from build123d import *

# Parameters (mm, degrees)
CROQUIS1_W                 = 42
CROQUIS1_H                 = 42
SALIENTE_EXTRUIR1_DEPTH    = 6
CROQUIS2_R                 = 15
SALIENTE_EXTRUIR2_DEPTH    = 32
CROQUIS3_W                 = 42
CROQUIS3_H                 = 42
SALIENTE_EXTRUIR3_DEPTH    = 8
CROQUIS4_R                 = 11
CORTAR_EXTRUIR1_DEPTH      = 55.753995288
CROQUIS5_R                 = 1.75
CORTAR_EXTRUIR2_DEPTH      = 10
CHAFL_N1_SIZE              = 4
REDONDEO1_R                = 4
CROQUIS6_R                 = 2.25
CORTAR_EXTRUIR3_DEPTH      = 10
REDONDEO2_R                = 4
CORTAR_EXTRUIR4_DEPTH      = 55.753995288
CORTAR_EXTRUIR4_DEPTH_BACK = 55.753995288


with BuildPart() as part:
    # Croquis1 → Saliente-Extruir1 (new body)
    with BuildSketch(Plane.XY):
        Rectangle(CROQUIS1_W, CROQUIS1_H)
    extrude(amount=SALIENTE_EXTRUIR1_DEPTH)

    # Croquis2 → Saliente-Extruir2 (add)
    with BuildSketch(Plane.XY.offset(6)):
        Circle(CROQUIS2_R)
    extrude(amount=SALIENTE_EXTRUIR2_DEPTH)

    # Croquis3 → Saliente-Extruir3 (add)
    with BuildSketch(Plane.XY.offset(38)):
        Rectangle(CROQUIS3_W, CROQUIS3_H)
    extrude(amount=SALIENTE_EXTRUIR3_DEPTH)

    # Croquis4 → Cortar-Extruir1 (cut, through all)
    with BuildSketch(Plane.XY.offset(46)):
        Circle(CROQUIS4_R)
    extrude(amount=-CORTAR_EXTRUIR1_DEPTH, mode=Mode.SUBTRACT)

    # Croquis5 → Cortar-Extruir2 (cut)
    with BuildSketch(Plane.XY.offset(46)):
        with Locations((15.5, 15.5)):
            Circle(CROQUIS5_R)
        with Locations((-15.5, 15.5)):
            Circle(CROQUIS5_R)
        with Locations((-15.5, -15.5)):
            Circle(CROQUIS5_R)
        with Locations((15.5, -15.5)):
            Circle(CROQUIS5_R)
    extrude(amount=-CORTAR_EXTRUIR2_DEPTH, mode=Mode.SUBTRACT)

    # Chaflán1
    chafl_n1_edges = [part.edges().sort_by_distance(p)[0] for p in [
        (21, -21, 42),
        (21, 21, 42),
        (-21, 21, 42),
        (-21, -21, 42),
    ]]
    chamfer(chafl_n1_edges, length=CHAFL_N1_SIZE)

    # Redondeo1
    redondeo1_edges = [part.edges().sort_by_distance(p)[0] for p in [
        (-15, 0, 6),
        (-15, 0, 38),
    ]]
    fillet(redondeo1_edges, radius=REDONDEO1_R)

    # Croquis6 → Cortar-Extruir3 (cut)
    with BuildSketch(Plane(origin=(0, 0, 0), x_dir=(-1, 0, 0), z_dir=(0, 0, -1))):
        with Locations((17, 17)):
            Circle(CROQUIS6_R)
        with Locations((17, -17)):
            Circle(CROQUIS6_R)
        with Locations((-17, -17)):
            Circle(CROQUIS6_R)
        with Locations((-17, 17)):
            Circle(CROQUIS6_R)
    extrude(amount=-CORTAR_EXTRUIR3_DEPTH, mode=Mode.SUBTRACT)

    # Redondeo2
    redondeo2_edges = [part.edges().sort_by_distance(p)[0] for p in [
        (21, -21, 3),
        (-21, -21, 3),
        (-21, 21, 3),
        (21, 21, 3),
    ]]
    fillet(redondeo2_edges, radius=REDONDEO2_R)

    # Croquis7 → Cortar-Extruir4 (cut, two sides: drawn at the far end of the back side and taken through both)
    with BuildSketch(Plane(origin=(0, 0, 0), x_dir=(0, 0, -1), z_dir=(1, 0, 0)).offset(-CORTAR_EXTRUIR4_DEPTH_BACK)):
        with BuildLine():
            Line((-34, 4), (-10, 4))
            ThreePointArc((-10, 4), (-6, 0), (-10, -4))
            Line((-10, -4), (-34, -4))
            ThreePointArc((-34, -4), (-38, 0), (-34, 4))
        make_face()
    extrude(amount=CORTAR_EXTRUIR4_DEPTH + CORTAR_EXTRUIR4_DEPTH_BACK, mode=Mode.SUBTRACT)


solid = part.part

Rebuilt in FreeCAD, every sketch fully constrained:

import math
import FreeCAD as App
import Part
import Sketcher
from FreeCAD import Vector


def edges_at(feature, points):
    """Names of the edges that pass closest to the given points."""
    edges = feature.Shape.Edges
    near = lambda p: min(range(len(edges)), key=lambda i: edges[i].distToShape(Part.Vertex(*p))[0])
    return sorted({f"Edge{near(p) + 1}" for p in points})

doc = App.newDocument("Part")
params = doc.addObject("Spreadsheet::Sheet", "Params")
for row, (alias, value) in enumerate([
    ("sketch1_width", "42 mm"),
    ("pad1_length", "6 mm"),
    ("sketch2_diameter", "30 mm"),
    ("pad2_length", "32 mm"),
    ("sketch3_width", "42 mm"),
    ("pad3_length", "8 mm"),
    ("sketch4_diameter", "22 mm"),
    ("sketch5_diameter", "3.5 mm"),
    ("pocket2_length", "10 mm"),
    ("chamfer_size", "4 mm"),
    ("fillet_radius", "4 mm"),
    ("sketch6_diameter", "4.5 mm"),
    ("pocket3_length", "10 mm"),
    ("fillet2_radius", "4 mm"),
    ("sketch7_radius", "4 mm"),
    ("sketch7_height", "24 mm"),
], start=1):
    params.set(f"A{row}", alias)
    params.set(f"B{row}", "=" + value)
    params.setAlias(f"B{row}", alias)

body = doc.addObject("PartDesign::Body", "Body")

# Sketch on XY plane
sketch1 = body.newObject("Sketcher::SketchObject", "Sketch")
sketch1.AttachmentSupport = (doc.getObject("XY_Plane"), [""])
sketch1.MapMode = "FlatFace"
sketch1.addGeometry([
    Part.LineSegment(Vector(-21, 21, 0), Vector(-21, -21, 0)),
    Part.LineSegment(Vector(-21, -21, 0), Vector(21, -21, 0)),
    Part.LineSegment(Vector(21, -21, 0), Vector(21, 21, 0)),
    Part.LineSegment(Vector(21, 21, 0), Vector(-21, 21, 0)),
], False)
sketch1.addConstraint([
    Sketcher.Constraint("Coincident", 0, 2, 1, 1),
    Sketcher.Constraint("Coincident", 1, 2, 2, 1),
    Sketcher.Constraint("Coincident", 2, 2, 3, 1),
    Sketcher.Constraint("Coincident", 3, 2, 0, 1),
    Sketcher.Constraint("Vertical", 0),
    Sketcher.Constraint("Horizontal", 1),
    Sketcher.Constraint("Vertical", 2),
    Sketcher.Constraint("Horizontal", 3),
    Sketcher.Constraint("Symmetric", 0, 2, 2, 2, -1, 1),
    Sketcher.Constraint("Equal", 3, 0),
    Sketcher.Constraint("DistanceX", 1, 1, 1, 2, 42.0),
])
sketch1.setExpression("Constraints[10]", "Params.sketch1_width")
pad1 = body.newObject("PartDesign::Pad", "Pad")
pad1.Profile = sketch1
pad1.setExpression("Length", "Params.pad1_length")

# Sketch on XY plane
sketch2 = body.newObject("Sketcher::SketchObject", "Sketch001")
sketch2.AttachmentSupport = (doc.getObject("XY_Plane"), [""])
sketch2.MapMode = "FlatFace"
sketch2.AttachmentOffset = App.Placement(Vector(0, 0, 6), App.Rotation())
sketch2.addGeometry(Part.Circle(Vector(0, 0, 0), Vector(0, 0, 1), 15), False)
sketch2.addConstraint([
    Sketcher.Constraint("Coincident", 0, 3, -1, 1),
    Sketcher.Constraint("Diameter", 0, 30.0),
])
sketch2.setExpression("Constraints[1]", "Params.sketch2_diameter")
pad2 = body.newObject("PartDesign::Pad", "Pad001")
pad2.Profile = sketch2
pad2.setExpression("Length", "Params.pad2_length")

# Sketch on XY plane
sketch3 = body.newObject("Sketcher::SketchObject", "Sketch002")
sketch3.AttachmentSupport = (doc.getObject("XY_Plane"), [""])
sketch3.MapMode = "FlatFace"
sketch3.AttachmentOffset = App.Placement(Vector(0, 0, 38), App.Rotation())
sketch3.addGeometry([
    Part.LineSegment(Vector(-21, 21, 0), Vector(-21, -21, 0)),
    Part.LineSegment(Vector(-21, -21, 0), Vector(21, -21, 0)),
    Part.LineSegment(Vector(21, -21, 0), Vector(21, 21, 0)),
    Part.LineSegment(Vector(21, 21, 0), Vector(-21, 21, 0)),
], False)
sketch3.addConstraint([
    Sketcher.Constraint("Coincident", 0, 2, 1, 1),
    Sketcher.Constraint("Coincident", 1, 2, 2, 1),
    Sketcher.Constraint("Coincident", 2, 2, 3, 1),
    Sketcher.Constraint("Coincident", 3, 2, 0, 1),
    Sketcher.Constraint("Vertical", 0),
    Sketcher.Constraint("Horizontal", 1),
    Sketcher.Constraint("Vertical", 2),
    Sketcher.Constraint("Horizontal", 3),
    Sketcher.Constraint("Symmetric", 0, 2, 2, 2, -1, 1),
    Sketcher.Constraint("Equal", 3, 0),
    Sketcher.Constraint("DistanceX", 1, 1, 1, 2, 42.0),
])
sketch3.setExpression("Constraints[10]", "Params.sketch3_width")
pad3 = body.newObject("PartDesign::Pad", "Pad002")
pad3.Profile = sketch3
pad3.setExpression("Length", "Params.pad3_length")

# Sketch on XY plane
sketch4 = body.newObject("Sketcher::SketchObject", "Sketch003")
sketch4.AttachmentSupport = (doc.getObject("XY_Plane"), [""])
sketch4.MapMode = "FlatFace"
sketch4.AttachmentOffset = App.Placement(Vector(0, 0, 46), App.Rotation())
sketch4.addGeometry(Part.Circle(Vector(0, 0, 0), Vector(0, 0, 1), 11), False)
sketch4.addConstraint([
    Sketcher.Constraint("Coincident", 0, 3, -1, 1),
    Sketcher.Constraint("Diameter", 0, 22.0),
])
sketch4.setExpression("Constraints[1]", "Params.sketch4_diameter")
pocket1 = body.newObject("PartDesign::Pocket", "Pocket")
pocket1.Profile = sketch4
pocket1.Type = "ThroughAll"

# Sketch on XY plane
sketch5 = body.newObject("Sketcher::SketchObject", "Sketch004")
sketch5.AttachmentSupport = (doc.getObject("XY_Plane"), [""])
sketch5.MapMode = "FlatFace"
sketch5.AttachmentOffset = App.Placement(Vector(0, 0, 46), App.Rotation())
sketch5.addGeometry([
    Part.Circle(Vector(15.5, 15.5, 0), Vector(0, 0, 1), 1.8),
    Part.Circle(Vector(-15.5, 15.5, 0), Vector(0, 0, 1), 1.8),
    Part.Circle(Vector(-15.5, -15.5, 0), Vector(0, 0, 1), 1.8),
    Part.Circle(Vector(15.5, -15.5, 0), Vector(0, 0, 1), 1.8),
], False)
sketch5.addConstraint([
    Sketcher.Constraint("Equal", 0, 1),
    Sketcher.Constraint("Equal", 1, 2),
    Sketcher.Constraint("Equal", 2, 3),
    Sketcher.Constraint("Symmetric", 0, 3, 2, 3, -1, 1),
    Sketcher.Constraint("Symmetric", 1, 3, 3, 3, -1, 1),
    Sketcher.Constraint("Symmetric", 0, 3, 1, 3, -2),
    Sketcher.Constraint("Diameter", 0, 3.5),
    Sketcher.Constraint("DistanceX", 1, 3, 0, 3, 31.0),
    Sketcher.Constraint("DistanceY", 2, 3, 1, 3, 31.0),
])
sketch5.setExpression("Constraints[6]", "Params.sketch5_diameter")
pocket2 = body.newObject("PartDesign::Pocket", "Pocket001")
pocket2.Profile = sketch5
pocket2.setExpression("Length", "Params.pocket2_length")
doc.recompute()

chamfer = body.newObject("PartDesign::Chamfer", "Chamfer")
chamfer.Base = (pocket2, edges_at(pocket2, [
    (21, -21, 42),
    (21, 21, 42),
    (-21, 21, 42),
    (-21, -21, 42),
]))
chamfer.setExpression("Size", "Params.chamfer_size")
doc.recompute()

fillet = body.newObject("PartDesign::Fillet", "Fillet")
fillet.Base = (chamfer, edges_at(chamfer, [(-15, 0, 6), (-15, 0, 38)]))
fillet.setExpression("Radius", "Params.fillet_radius")

# Sketch on XY plane
sketch6 = body.newObject("Sketcher::SketchObject", "Sketch005")
sketch6.AttachmentSupport = (doc.getObject("XY_Plane"), [""])
sketch6.MapMode = "FlatFace"
sketch6.addGeometry([
    Part.Circle(Vector(-17, 17, 0), Vector(0, 0, 1), 2.2),
    Part.Circle(Vector(-17, -17, 0), Vector(0, 0, 1), 2.2),
    Part.Circle(Vector(17, -17, 0), Vector(0, 0, 1), 2.2),
    Part.Circle(Vector(17, 17, 0), Vector(0, 0, 1), 2.2),
], False)
sketch6.addConstraint([
    Sketcher.Constraint("Equal", 0, 1),
    Sketcher.Constraint("Equal", 1, 2),
    Sketcher.Constraint("Equal", 2, 3),
    Sketcher.Constraint("Symmetric", 0, 3, 2, 3, -1, 1),
    Sketcher.Constraint("Symmetric", 1, 3, 3, 3, -1, 1),
    Sketcher.Constraint("Symmetric", 1, 3, 2, 3, -2),
    Sketcher.Constraint("Diameter", 0, 4.5),
    Sketcher.Constraint("DistanceX", 0, 3, -1, 1, 17.0),
    Sketcher.Constraint("DistanceY", -1, 1, 0, 3, 17.0),
])
sketch6.setExpression("Constraints[6]", "Params.sketch6_diameter")
pocket3 = body.newObject("PartDesign::Pocket", "Pocket002")
pocket3.Profile = sketch6
pocket3.setExpression("Length", "Params.pocket3_length")
pocket3.Reversed = True
doc.recompute()

fillet2 = body.newObject("PartDesign::Fillet", "Fillet001")
fillet2.Base = (pocket3, edges_at(pocket3, [
    (21, -21, 3),
    (-21, -21, 3),
    (-21, 21, 3),
    (21, 21, 3),
]))
fillet2.setExpression("Radius", "Params.fillet2_radius")

# Sketch on YZ plane
sketch7 = body.newObject("Sketcher::SketchObject", "Sketch006")
sketch7.AttachmentSupport = (doc.getObject("YZ_Plane"), [""])
sketch7.MapMode = "FlatFace"
sketch7.addGeometry([
    Part.LineSegment(Vector(4, 10, 0), Vector(4, 34, 0)),
    Part.ArcOfCircle(Part.Circle(Vector(0, 34, 0), Vector(0, 0, 1), 4), math.radians(0), math.radians(180)),
    Part.LineSegment(Vector(-4, 34, 0), Vector(-4, 10, 0)),
    Part.ArcOfCircle(Part.Circle(Vector(0, 10, 0), Vector(0, 0, 1), 4), math.radians(180), math.radians(360)),
], False)
sketch7.addConstraint([
    Sketcher.Constraint("Tangent", 0, 2, 1, 1),
    Sketcher.Constraint("Tangent", 1, 2, 2, 1),
    Sketcher.Constraint("Tangent", 2, 2, 3, 1),
    Sketcher.Constraint("Tangent", 3, 2, 0, 1),
    Sketcher.Constraint("Vertical", 0),
    Sketcher.Constraint("Vertical", 2),
    Sketcher.Constraint("PointOnObject", 1, 3, -2),
    Sketcher.Constraint("Radius", 1, 4.0),
    Sketcher.Constraint("DistanceY", 0, 1, 0, 2, 24.0),
    Sketcher.Constraint("DistanceY", -1, 1, 1, 3, 34.0),
])
sketch7.setExpression("Constraints[7]", "Params.sketch7_radius")
sketch7.setExpression("Constraints[8]", "Params.sketch7_height")
pocket4 = body.newObject("PartDesign::Pocket", "Pocket003")
pocket4.Profile = sketch7
pocket4.Type = "ThroughAll"
pocket4.Midplane = True

doc.recompute()
